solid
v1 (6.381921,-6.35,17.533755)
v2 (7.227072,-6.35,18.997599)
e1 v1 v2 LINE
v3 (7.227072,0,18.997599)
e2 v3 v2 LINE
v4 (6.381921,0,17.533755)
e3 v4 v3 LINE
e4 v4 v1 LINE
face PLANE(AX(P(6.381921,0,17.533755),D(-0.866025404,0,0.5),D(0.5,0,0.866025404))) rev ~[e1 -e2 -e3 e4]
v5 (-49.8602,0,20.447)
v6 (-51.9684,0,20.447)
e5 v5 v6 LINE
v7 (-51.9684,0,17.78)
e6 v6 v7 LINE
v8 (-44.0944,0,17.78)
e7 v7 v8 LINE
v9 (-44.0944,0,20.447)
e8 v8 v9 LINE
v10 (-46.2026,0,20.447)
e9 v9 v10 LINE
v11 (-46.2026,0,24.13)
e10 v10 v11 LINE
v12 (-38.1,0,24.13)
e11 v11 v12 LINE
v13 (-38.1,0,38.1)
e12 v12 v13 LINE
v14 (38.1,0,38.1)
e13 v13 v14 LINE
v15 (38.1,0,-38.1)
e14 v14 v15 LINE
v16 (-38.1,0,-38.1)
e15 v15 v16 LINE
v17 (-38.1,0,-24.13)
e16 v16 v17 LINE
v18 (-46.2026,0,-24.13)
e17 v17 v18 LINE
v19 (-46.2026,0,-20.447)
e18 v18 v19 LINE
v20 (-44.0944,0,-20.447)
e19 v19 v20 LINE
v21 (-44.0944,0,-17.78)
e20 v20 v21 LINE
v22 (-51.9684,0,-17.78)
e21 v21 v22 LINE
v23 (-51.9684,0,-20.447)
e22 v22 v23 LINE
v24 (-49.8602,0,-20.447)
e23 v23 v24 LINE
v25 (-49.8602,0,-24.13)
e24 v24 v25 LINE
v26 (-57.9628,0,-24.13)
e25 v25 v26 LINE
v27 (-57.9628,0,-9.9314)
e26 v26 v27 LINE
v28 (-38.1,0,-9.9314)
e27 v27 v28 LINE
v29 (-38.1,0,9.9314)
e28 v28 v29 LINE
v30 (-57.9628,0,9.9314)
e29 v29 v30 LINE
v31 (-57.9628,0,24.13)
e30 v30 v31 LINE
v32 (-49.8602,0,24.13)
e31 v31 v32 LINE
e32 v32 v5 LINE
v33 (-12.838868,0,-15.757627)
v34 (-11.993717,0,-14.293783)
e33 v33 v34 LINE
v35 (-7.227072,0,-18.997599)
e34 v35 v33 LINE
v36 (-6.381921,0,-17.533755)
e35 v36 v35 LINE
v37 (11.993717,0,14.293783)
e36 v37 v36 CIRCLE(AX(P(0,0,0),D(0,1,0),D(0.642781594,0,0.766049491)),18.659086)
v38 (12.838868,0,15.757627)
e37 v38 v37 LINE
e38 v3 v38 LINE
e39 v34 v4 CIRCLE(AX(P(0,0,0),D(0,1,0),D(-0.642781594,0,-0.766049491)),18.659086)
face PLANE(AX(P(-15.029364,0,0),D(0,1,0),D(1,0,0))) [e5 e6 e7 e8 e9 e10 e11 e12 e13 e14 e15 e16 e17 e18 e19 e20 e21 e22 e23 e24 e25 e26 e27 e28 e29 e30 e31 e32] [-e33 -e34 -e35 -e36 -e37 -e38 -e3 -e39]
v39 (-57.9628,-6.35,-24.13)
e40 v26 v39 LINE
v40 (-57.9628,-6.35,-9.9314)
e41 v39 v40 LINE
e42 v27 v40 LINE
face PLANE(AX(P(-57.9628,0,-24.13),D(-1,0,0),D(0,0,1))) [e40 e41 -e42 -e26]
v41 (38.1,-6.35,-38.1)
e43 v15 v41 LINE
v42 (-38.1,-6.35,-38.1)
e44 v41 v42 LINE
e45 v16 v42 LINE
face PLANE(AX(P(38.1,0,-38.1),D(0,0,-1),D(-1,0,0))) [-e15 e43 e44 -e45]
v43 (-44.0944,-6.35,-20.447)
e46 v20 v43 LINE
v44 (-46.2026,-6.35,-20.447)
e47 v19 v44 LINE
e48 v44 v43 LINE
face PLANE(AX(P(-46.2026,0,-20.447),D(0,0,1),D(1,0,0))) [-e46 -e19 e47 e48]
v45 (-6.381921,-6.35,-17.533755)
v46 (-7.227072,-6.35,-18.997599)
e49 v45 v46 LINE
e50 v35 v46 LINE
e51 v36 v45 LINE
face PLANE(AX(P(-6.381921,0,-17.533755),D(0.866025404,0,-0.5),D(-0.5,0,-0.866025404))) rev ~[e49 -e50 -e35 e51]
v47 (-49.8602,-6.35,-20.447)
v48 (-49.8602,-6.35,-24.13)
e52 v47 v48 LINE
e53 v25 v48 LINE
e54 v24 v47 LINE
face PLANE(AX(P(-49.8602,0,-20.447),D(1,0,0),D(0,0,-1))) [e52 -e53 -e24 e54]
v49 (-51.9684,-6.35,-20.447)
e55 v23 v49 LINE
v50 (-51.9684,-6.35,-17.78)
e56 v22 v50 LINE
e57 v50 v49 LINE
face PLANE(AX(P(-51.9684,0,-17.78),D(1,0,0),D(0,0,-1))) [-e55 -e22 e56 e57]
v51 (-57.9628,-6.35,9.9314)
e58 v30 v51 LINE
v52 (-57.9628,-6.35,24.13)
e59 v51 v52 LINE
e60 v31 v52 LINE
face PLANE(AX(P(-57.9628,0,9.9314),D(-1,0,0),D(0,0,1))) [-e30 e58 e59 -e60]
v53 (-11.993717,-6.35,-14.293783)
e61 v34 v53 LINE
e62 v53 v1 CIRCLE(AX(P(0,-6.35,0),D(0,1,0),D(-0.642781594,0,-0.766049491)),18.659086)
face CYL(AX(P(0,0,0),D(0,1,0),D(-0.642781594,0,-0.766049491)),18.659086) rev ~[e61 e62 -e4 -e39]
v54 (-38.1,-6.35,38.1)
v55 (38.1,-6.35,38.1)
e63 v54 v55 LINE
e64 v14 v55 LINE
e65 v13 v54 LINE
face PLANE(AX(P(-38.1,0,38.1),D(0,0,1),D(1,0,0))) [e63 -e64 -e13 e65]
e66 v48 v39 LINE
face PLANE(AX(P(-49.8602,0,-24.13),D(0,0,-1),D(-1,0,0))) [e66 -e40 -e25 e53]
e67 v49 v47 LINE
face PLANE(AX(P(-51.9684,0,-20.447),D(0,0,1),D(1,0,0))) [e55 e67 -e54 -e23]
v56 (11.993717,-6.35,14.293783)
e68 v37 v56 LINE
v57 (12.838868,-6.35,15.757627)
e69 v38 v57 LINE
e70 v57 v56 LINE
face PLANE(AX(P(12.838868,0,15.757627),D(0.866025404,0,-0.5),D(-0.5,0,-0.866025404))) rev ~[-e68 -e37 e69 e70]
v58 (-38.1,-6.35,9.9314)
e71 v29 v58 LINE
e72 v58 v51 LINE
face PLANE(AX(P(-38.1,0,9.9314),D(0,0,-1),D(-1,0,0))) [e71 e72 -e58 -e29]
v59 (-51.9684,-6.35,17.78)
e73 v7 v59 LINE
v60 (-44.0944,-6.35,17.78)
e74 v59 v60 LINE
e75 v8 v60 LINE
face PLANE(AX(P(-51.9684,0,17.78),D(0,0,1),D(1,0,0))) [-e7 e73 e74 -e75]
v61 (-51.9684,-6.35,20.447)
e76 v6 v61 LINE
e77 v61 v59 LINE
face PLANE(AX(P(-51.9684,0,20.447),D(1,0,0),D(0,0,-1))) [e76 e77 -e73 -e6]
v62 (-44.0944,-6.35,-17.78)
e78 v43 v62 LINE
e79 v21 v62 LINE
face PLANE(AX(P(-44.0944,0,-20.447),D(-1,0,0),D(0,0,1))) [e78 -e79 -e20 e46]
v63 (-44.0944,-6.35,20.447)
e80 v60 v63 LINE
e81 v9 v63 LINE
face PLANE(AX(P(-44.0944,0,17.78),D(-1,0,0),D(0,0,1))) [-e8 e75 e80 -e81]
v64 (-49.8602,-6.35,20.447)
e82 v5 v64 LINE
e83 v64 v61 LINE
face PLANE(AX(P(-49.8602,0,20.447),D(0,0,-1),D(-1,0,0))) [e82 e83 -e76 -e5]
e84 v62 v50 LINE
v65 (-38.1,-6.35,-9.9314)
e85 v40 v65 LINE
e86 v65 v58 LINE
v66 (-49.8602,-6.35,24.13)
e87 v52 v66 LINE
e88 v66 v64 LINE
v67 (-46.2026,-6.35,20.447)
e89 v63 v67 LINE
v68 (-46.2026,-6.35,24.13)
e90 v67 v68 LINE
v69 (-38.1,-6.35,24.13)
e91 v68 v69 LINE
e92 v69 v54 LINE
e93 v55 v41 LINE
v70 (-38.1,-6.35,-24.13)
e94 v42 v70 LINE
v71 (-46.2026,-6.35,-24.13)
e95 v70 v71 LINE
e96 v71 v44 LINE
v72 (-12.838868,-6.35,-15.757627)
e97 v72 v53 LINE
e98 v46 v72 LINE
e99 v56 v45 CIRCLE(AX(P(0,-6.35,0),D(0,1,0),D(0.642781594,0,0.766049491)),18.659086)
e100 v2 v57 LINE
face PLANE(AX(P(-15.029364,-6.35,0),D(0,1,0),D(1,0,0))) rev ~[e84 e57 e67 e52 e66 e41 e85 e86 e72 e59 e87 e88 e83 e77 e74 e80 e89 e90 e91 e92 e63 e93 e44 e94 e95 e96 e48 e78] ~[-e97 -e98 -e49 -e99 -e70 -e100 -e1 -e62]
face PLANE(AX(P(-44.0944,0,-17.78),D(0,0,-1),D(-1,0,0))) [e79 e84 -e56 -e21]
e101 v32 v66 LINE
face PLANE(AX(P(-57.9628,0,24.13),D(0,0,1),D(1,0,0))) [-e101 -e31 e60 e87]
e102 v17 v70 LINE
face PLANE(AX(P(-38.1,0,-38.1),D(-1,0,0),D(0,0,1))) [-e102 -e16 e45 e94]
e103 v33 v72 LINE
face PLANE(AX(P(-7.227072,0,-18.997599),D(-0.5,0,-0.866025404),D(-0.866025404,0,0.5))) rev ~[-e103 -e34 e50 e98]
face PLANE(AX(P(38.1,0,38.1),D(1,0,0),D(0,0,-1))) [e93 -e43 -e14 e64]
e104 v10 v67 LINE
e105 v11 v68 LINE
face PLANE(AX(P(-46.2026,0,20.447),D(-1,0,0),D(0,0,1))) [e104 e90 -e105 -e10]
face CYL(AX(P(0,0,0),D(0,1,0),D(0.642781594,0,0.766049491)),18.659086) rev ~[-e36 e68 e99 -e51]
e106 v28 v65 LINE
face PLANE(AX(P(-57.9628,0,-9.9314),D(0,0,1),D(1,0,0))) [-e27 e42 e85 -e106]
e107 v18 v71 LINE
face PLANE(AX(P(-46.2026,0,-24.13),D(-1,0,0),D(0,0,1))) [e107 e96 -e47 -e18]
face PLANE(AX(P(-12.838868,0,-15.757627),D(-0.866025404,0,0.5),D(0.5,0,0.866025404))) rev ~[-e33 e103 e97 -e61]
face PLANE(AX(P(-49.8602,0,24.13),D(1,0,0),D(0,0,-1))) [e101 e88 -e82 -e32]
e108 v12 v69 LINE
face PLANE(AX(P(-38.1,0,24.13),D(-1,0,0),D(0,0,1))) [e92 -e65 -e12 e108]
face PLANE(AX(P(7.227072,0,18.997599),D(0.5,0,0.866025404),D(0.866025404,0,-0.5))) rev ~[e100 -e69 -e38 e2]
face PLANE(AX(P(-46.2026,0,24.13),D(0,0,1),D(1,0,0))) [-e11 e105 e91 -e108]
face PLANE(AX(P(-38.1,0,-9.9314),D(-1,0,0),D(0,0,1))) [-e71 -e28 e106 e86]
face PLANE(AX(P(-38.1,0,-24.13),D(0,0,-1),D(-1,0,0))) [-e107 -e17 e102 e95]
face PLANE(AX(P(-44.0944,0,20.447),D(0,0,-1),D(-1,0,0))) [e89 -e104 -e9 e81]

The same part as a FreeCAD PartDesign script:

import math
import FreeCAD as App
import Part
import Sketcher
from FreeCAD import Vector
Q = App.Units.Quantity

doc = App.newDocument("Part")
body = doc.addObject("PartDesign::Body", "Body")

# Sketch on XZ plane
sketch1 = body.newObject("Sketcher::SketchObject", "Sketch")
sketch1.AttachmentSupport = (doc.getObject("XZ_Plane"), [""])
sketch1.MapMode = "FlatFace"
sketch1.addGeometry([
    Part.LineSegment(Vector(-38.1, 38.1, 0), Vector(38.1, 38.1, 0)),  # 0
    Part.LineSegment(Vector(38.1, 38.1, 0), Vector(38.1, -38.1, 0)),  # 1
    Part.LineSegment(Vector(38.1, -38.1, 0), Vector(-38.1, -38.1, 0)),  # 2
    Part.LineSegment(Vector(-38.1, -38.1, 0), Vector(-38.1, -24.1, 0)),  # 3
    Part.LineSegment(Vector(-38.1, -24.1, 0), Vector(-46.2, -24.1, 0)),  # 4
    Part.LineSegment(Vector(-46.2, -24.1, 0), Vector(-46.2, -20.4, 0)),  # 5
    Part.LineSegment(Vector(-46.2, -20.4, 0), Vector(-44.1, -20.4, 0)),  # 6
    Part.LineSegment(Vector(-44.1, -20.4, 0), Vector(-44.1, -17.8, 0)),  # 7
    Part.LineSegment(Vector(-44.1, -17.8, 0), Vector(-52, -17.8, 0)),  # 8
    Part.LineSegment(Vector(-52, -17.8, 0), Vector(-52, -20.4, 0)),  # 9
    Part.LineSegment(Vector(-52, -20.4, 0), Vector(-49.9, -20.4, 0)),  # 10
    Part.LineSegment(Vector(-49.9, -20.4, 0), Vector(-49.9, -24.1, 0)),  # 11
    Part.LineSegment(Vector(-49.9, -24.1, 0), Vector(-58, -24.1, 0)),  # 12
    Part.LineSegment(Vector(-58, -24.1, 0), Vector(-58, -9.9, 0)),  # 13
    Part.LineSegment(Vector(-58, -9.9, 0), Vector(-38.1, -9.9, 0)),  # 14
    Part.LineSegment(Vector(-38.1, -9.9, 0), Vector(-38.1, 9.9, 0)),  # 15
    Part.LineSegment(Vector(-38.1, 9.9, 0), Vector(-58, 9.9, 0)),  # 16
    Part.LineSegment(Vector(-58, 9.9, 0), Vector(-58, 24.1, 0)),  # 17
    Part.LineSegment(Vector(-58, 24.1, 0), Vector(-49.9, 24.1, 0)),  # 18
    Part.LineSegment(Vector(-49.9, 24.1, 0), Vector(-49.9, 20.4, 0)),  # 19
    Part.LineSegment(Vector(-49.9, 20.4, 0), Vector(-52, 20.4, 0)),  # 20
    Part.LineSegment(Vector(-52, 20.4, 0), Vector(-52, 17.8, 0)),  # 21
    Part.LineSegment(Vector(-52, 17.8, 0), Vector(-44.1, 17.8, 0)),  # 22
    Part.LineSegment(Vector(-44.1, 17.8, 0), Vector(-44.1, 20.4, 0)),  # 23
    Part.LineSegment(Vector(-44.1, 20.4, 0), Vector(-46.2, 20.4, 0)),  # 24
    Part.LineSegment(Vector(-46.2, 20.4, 0), Vector(-46.2, 24.1, 0)),  # 25
    Part.LineSegment(Vector(-46.2, 24.1, 0), Vector(-38.1, 24.1, 0)),  # 26
    Part.LineSegment(Vector(-38.1, 24.1, 0), Vector(-38.1, 38.1, 0)),  # 27
    Part.LineSegment(Vector(12.8, 15.8, 0), Vector(7.2, 19, 0)),  # 28
    Part.LineSegment(Vector(7.2, 19, 0), Vector(6.4, 17.5, 0)),  # 29
    Part.ArcOfCircle(Part.Circle(Vector(0, 0, 0), Vector(0, 0, 1), 18.7), math.radians(70), math.radians(230)),  # 30
    Part.LineSegment(Vector(-12, -14.3, 0), Vector(-12.8, -15.8, 0)),  # 31
    Part.LineSegment(Vector(-12.8, -15.8, 0), Vector(-7.2, -19, 0)),  # 32
    Part.LineSegment(Vector(-7.2, -19, 0), Vector(-6.4, -17.5, 0)),  # 33
    Part.ArcOfCircle(Part.Circle(Vector(0, 0, 0), Vector(0, 0, 1), 18.7), math.radians(-110), math.radians(50)),  # 34
    Part.LineSegment(Vector(12, 14.3, 0), Vector(12.8, 15.8, 0)),  # 35
], False)
sketch1.addConstraint([
    Sketcher.Constraint("Coincident", 0, 2, 1, 1),
    Sketcher.Constraint("Coincident", 1, 2, 2, 1),
    Sketcher.Constraint("Coincident", 2, 2, 3, 1),
    Sketcher.Constraint("Coincident", 3, 2, 4, 1),
    Sketcher.Constraint("Coincident", 4, 2, 5, 1),
    Sketcher.Constraint("Coincident", 5, 2, 6, 1),
    Sketcher.Constraint("Coincident", 6, 2, 7, 1),
    Sketcher.Constraint("Coincident", 7, 2, 8, 1),
    Sketcher.Constraint("Coincident", 8, 2, 9, 1),
    Sketcher.Constraint("Coincident", 9, 2, 10, 1),
    Sketcher.Constraint("Coincident", 10, 2, 11, 1),
    Sketcher.Constraint("Coincident", 11, 2, 12, 1),
    Sketcher.Constraint("Coincident", 12, 2, 13, 1),
    Sketcher.Constraint("Coincident", 13, 2, 14, 1),
    Sketcher.Constraint("Coincident", 14, 2, 15, 1),
    Sketcher.Constraint("Coincident", 15, 2, 16, 1),
    Sketcher.Constraint("Coincident", 16, 2, 17, 1),
    Sketcher.Constraint("Coincident", 17, 2, 18, 1),
    Sketcher.Constraint("Coincident", 18, 2, 19, 1),
    Sketcher.Constraint("Coincident", 19, 2, 20, 1),
    Sketcher.Constraint("Coincident", 20, 2, 21, 1),
    Sketcher.Constraint("Coincident", 21, 2, 22, 1),
    Sketcher.Constraint("Coincident", 22, 2, 23, 1),
    Sketcher.Constraint("Coincident", 23, 2, 24, 1),
    Sketcher.Constraint("Coincident", 24, 2, 25, 1),
    Sketcher.Constraint("Coincident", 25, 2, 26, 1),
    Sketcher.Constraint("Coincident", 26, 2, 27, 1),
    Sketcher.Constraint("Coincident", 27, 2, 0, 1),
    Sketcher.Constraint("Coincident", 28, 2, 29, 1),
    Sketcher.Constraint("Coincident", 29, 2, 30, 1),
    Sketcher.Constraint("Coincident", 30, 2, 31, 1),
    Sketcher.Constraint("Coincident", 31, 2, 32, 1),
    Sketcher.Constraint("Coincident", 32, 2, 33, 1),
    Sketcher.Constraint("Coincident", 33, 2, 34, 1),
    Sketcher.Constraint("Coincident", 34, 2, 35, 1),
    Sketcher.Constraint("Coincident", 35, 2, 28, 1),
    Sketcher.Constraint("Horizontal", 0),
    Sketcher.Constraint("Vertical", 1),
    Sketcher.Constraint("Horizontal", 2),
    Sketcher.Constraint("Vertical", 3),
    Sketcher.Constraint("Horizontal", 4),
    Sketcher.Constraint("Vertical", 5),
    Sketcher.Constraint("Horizontal", 6),
    Sketcher.Constraint("Vertical", 7),
    Sketcher.Constraint("Horizontal", 8),
    Sketcher.Constraint("Vertical", 9),
    Sketcher.Constraint("Horizontal", 10),
    Sketcher.Constraint("Vertical", 11),
    Sketcher.Constraint("Horizontal", 12),
    Sketcher.Constraint("Vertical", 13),
    Sketcher.Constraint("Horizontal", 14),
    Sketcher.Constraint("Vertical", 15),
    Sketcher.Constraint("Horizontal", 16),
    Sketcher.Constraint("Vertical", 17),
    Sketcher.Constraint("Horizontal", 18),
    Sketcher.Constraint("Vertical", 19),
    Sketcher.Constraint("Horizontal", 20),
    Sketcher.Constraint("Vertical", 21),
    Sketcher.Constraint("Horizontal", 22),
    Sketcher.Constraint("Vertical", 23),
    Sketcher.Constraint("Horizontal", 24),
    Sketcher.Constraint("Vertical", 25),
    Sketcher.Constraint("Horizontal", 26),
    Sketcher.Constraint("Vertical", 27),
    Sketcher.Constraint("Coincident", 30, 3, -1, 1),
    Sketcher.Constraint("Coincident", 34, 3, -1, 1),
    Sketcher.Constraint("Equal", 30, 34),
    Sketcher.Constraint("Symmetric", 0, 2, 2, 2, -1, 1),
    Sketcher.Constraint("Symmetric", 28, 2, 32, 2, -1, 1),
    Sketcher.Constraint("Symmetric", 31, 2, 35, 2, -1, 1),
    Sketcher.Constraint("Symmetric", 13, 2, 16, 2, -1),
    Sketcher.Constraint("Symmetric", 11, 2, 18, 2, -1),
    Sketcher.Constraint("Symmetric", 9, 2, 20, 2, -1),
    Sketcher.Constraint("Symmetric", 7, 2, 22, 2, -1),
    Sketcher.Constraint("Symmetric", 5, 2, 24, 2, -1),
    Sketcher.Constraint("Symmetric", 3, 2, 26, 2, -1),
    Sketcher.Constraint("Perpendicular", 28, 29),
    Sketcher.Constraint("Parallel", 29, 31),
    Sketcher.Constraint("Perpendicular", 32, 33),
    Sketcher.Constraint("Parallel", 33, 35),
    Sketcher.Constraint("Horizontal", 6, 2, 9, 2),
    Sketcher.Constraint("Horizontal", 4, 2, 11, 2),
    Sketcher.Constraint("Vertical", 3, 2, 14, 2),
    Sketcher.Constraint("Equal", 6, 10),
    Sketcher.Constraint("Equal", 4, 12),
    Sketcher.Constraint("Equal", 2, 1),
    Sketcher.Constraint("Equal", 16, 15),
    Sketcher.Constraint("Equal", 29, 31),
    Sketcher.Constraint("DistanceX", 0, 1, 0, 2, Q("3 in")),
    Sketcher.Constraint("Angle", 28, Q("150 deg")),
    Sketcher.Constraint("DistanceX", 8, 2, 8, 1, Q("0.31 in")),
    Sketcher.Constraint("DistanceY", 3, 1, 3, 2, Q("0.55 in")),
    Sketcher.Constraint("DistanceY", 7, 2, -1, 1, Q("0.7 in")),
    Sketcher.Constraint("DistanceX", 4, 2, 4, 1, Q("0.319 in")),
    Sketcher.Constraint("DistanceX", 6, 1, 6, 2, Q("0.083 in")),
    Sketcher.Constraint("DistanceY", 5, 1, 5, 2, Q("0.145 in")),
    Sketcher.Constraint("Radius", 30, 18.659086),
    Sketcher.Constraint("Distance", 29, 1.690301),
    Sketcher.Constraint("DistanceY", -1, 1, 28, 2, 18.997599),
])
pad1 = body.newObject("PartDesign::Pad", "Pad")
pad1.Profile = sketch1
pad1.Length = Q("0.25 in")

doc.recompute()
